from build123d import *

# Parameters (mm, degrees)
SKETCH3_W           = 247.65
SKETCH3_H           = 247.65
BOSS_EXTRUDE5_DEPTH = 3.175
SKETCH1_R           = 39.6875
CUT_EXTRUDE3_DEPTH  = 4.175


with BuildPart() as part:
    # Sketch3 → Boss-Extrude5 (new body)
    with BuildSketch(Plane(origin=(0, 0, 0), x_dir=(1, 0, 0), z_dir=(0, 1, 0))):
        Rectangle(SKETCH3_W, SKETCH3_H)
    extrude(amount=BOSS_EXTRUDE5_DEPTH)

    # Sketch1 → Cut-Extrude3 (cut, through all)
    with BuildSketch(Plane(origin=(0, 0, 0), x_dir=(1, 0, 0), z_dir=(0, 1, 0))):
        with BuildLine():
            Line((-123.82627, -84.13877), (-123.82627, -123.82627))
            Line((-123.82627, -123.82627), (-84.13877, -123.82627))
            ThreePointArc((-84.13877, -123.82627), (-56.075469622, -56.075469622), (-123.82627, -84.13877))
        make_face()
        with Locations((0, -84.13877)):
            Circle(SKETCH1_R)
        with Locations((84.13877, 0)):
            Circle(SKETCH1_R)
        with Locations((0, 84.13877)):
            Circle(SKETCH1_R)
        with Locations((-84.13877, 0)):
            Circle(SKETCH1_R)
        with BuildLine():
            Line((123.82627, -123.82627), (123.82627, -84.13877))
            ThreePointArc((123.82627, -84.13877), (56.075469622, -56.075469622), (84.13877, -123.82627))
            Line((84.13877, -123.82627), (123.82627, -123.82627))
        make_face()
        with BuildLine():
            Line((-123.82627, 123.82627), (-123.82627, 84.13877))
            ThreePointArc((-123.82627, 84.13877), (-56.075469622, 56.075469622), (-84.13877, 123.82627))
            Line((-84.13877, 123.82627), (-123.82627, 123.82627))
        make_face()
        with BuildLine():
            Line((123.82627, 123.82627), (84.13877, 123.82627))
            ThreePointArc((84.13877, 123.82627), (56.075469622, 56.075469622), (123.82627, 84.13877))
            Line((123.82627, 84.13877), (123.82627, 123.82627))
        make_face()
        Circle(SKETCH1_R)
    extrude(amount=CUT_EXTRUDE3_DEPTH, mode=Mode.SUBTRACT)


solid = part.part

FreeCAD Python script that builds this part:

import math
import FreeCAD as App
import Part
import Sketcher
Q = App.Units.Quantity


def add_polygon(sketch, points):
    """Adds a closed chain of lines whose ends are joined by coincident constraints."""
    first, n = sketch.GeometryCount, len(points)
    for a, b in zip(points, points[1:] + points[:1]):
        sketch.addGeometry(Part.LineSegment(App.Vector(*a, 0), App.Vector(*b, 0)), False)
    for i in range(n):
        sketch.addConstraint(Sketcher.Constraint("Coincident", first + i, 2, first + (i + 1) % n, 1))

doc = App.newDocument("Part")
params = doc.addObject("Spreadsheet::Sheet", "Params")
for row, (alias, value) in enumerate([
    ("sketch1_width", "9.75 in"),
    ("pad1_length", "0.125 in"),
    ("sketch2_diameter", "3.125 in"),
], start=1):
    params.set(f"A{row}", alias)
    params.set(f"B{row}", "=" + value)
    params.setAlias(f"B{row}", alias)

body = doc.addObject("PartDesign::Body", "Body")

sketch1 = body.newObject("Sketcher::SketchObject", "Sketch")
sketch1.AttachmentSupport = (doc.getObject("XZ_Plane"), [""])
sketch1.MapMode = "FlatFace"
add_polygon(sketch1, [(-124, -124), (-124, 124), (124, 124), (124, -124)])
sketch1.addConstraint([
    Sketcher.Constraint("Vertical", 0),
    Sketcher.Constraint("Horizontal", 1),
    Sketcher.Constraint("Vertical", 2),
    Sketcher.Constraint("Horizontal", 3),
    Sketcher.Constraint("Symmetric", 0, 2, 2, 2, -1, 1),
    Sketcher.Constraint("Equal", 3, 0),
    Sketcher.Constraint("DistanceX", 1, 1, 1, 2, Q("9.75 in")),
])
sketch1.setExpression("Constraints[10]", "Params.sketch1_width")
pad1 = body.newObject("PartDesign::Pad", "Pad")
pad1.Profile = sketch1
pad1.setExpression("Length", "Params.pad1_length")
pad1.Reversed = True

sketch2 = body.newObject("Sketcher::SketchObject", "Sketch001")
sketch2.AttachmentSupport = (doc.getObject("XZ_Plane"), [""])
sketch2.MapMode = "FlatFace"
sketch2.addGeometry([
    Part.LineSegment(App.Vector(-124, 84, 0), App.Vector(-124, 124, 0)),
    Part.LineSegment(App.Vector(-124, 124, 0), App.Vector(-84, 124, 0)),
    Part.ArcOfCircle(Part.Circle(App.Vector(-84, 84, 0), App.Vector(0, 0, 1), 40), math.radians(180), math.radians(450)),
    Part.Circle(App.Vector(0, 84, 0), App.Vector(0, 0, 1), 40),
    Part.Circle(App.Vector(84, 0, 0), App.Vector(0, 0, 1), 40),
    Part.Circle(App.Vector(0, -84, 0), App.Vector(0, 0, 1), 40),
    Part.Circle(App.Vector(-84, 0, 0), App.Vector(0, 0, 1), 40),
    Part.LineSegment(App.Vector(124, 124, 0), App.Vector(124, 84, 0)),
    Part.ArcOfCircle(Part.Circle(App.Vector(84, 84, 0), App.Vector(0, 0, 1), 40), math.radians(90), math.radians(360)),
    Part.LineSegment(App.Vector(84, 124, 0), App.Vector(124, 124, 0)),
    Part.LineSegment(App.Vector(-124, -124, 0), App.Vector(-124, -84, 0)),
    Part.ArcOfCircle(Part.Circle(App.Vector(-84, -84, 0), App.Vector(0, 0, 1), 40), math.radians(-90), math.radians(180)),
    Part.LineSegment(App.Vector(-84, -124, 0), App.Vector(-124, -124, 0)),
    Part.LineSegment(App.Vector(124, -124, 0), App.Vector(84, -124, 0)),
    Part.ArcOfCircle(Part.Circle(App.Vector(84, -84, 0), App.Vector(0, 0, 1), 40), math.radians(0), math.radians(270)),
    Part.LineSegment(App.Vector(124, -84, 0), App.Vector(124, -124, 0)),
    Part.Circle(App.Vector(0, 0, 0), App.Vector(0, 0, 1), 40),
], False)
sketch2.addConstraint([
    Sketcher.Constraint("Coincident", 0, 2, 1, 1),
    Sketcher.Constraint("Tangent", 1, 2, 2, 2),
    Sketcher.Constraint("Tangent", 2, 1, 0, 1),
    Sketcher.Constraint("Tangent", 7, 2, 8, 2),
    Sketcher.Constraint("Tangent", 8, 1, 9, 1),
    Sketcher.Constraint("Coincident", 9, 2, 7, 1),
    Sketcher.Constraint("Tangent", 10, 2, 11, 2),
    Sketcher.Constraint("Tangent", 11, 1, 12, 1),
    Sketcher.Constraint("Coincident", 12, 2, 10, 1),
    Sketcher.Constraint("Tangent", 13, 2, 14, 2),
    Sketcher.Constraint("Tangent", 14, 1, 15, 1),
    Sketcher.Constraint("Coincident", 15, 2, 13, 1),
    Sketcher.Constraint("Vertical", 0),
    Sketcher.Constraint("Horizontal", 1),
    Sketcher.Constraint("Vertical", 7),
    Sketcher.Constraint("Horizontal", 9),
    Sketcher.Constraint("Vertical", 10),
    Sketcher.Constraint("Horizontal", 12),
    Sketcher.Constraint("Horizontal", 13),
    Sketcher.Constraint("Vertical", 15),
    Sketcher.Constraint("Coincident", 16, 3, -1, 1),
    Sketcher.Constraint("Equal", 2, 3),
    Sketcher.Constraint("Equal", 3, 4),
    Sketcher.Constraint("Equal", 4, 5),
    Sketcher.Constraint("Equal", 5, 6),
    Sketcher.Constraint("Equal", 6, 8),
    Sketcher.Constraint("Equal", 8, 11),
    Sketcher.Constraint("Equal", 11, 14),
    Sketcher.Constraint("Equal", 14, 16),
    Sketcher.Constraint("Symmetric", 3, 3, 5, 3, -1, 1),
    Sketcher.Constraint("Symmetric", 4, 3, 6, 3, -1, 1),
    Sketcher.Constraint("Symmetric", 8, 3, 11, 3, -1, 1),
    Sketcher.Constraint("Symmetric", 2, 3, 14, 3, -1, 1),
    Sketcher.Constraint("Symmetric", 2, 3, 8, 3, -2),
    Sketcher.Constraint("PointOnObject", 3, 3, -2),
    Sketcher.Constraint("PointOnObject", 4, 3, -1),
    Sketcher.Constraint("Horizontal", 2, 3, 3, 3),
    Sketcher.Constraint("Vertical", 2, 3, 6, 3),
    Sketcher.Constraint("Diameter", 3, Q("3.125 in")),
    Sketcher.Constraint("DistanceX", 2, 3, 4, 3, Q("6.6251 in")),
    Sketcher.Constraint("DistanceY", 5, 3, 3, 3, Q("6.6251 in")),
])
sketch2.setExpression("Constraints[38]", "Params.sketch2_diameter")
pocket1 = body.newObject("PartDesign::Pocket", "Pocket")
pocket1.Profile = sketch2
pocket1.Type = "ThroughAll"

doc.recompute()
